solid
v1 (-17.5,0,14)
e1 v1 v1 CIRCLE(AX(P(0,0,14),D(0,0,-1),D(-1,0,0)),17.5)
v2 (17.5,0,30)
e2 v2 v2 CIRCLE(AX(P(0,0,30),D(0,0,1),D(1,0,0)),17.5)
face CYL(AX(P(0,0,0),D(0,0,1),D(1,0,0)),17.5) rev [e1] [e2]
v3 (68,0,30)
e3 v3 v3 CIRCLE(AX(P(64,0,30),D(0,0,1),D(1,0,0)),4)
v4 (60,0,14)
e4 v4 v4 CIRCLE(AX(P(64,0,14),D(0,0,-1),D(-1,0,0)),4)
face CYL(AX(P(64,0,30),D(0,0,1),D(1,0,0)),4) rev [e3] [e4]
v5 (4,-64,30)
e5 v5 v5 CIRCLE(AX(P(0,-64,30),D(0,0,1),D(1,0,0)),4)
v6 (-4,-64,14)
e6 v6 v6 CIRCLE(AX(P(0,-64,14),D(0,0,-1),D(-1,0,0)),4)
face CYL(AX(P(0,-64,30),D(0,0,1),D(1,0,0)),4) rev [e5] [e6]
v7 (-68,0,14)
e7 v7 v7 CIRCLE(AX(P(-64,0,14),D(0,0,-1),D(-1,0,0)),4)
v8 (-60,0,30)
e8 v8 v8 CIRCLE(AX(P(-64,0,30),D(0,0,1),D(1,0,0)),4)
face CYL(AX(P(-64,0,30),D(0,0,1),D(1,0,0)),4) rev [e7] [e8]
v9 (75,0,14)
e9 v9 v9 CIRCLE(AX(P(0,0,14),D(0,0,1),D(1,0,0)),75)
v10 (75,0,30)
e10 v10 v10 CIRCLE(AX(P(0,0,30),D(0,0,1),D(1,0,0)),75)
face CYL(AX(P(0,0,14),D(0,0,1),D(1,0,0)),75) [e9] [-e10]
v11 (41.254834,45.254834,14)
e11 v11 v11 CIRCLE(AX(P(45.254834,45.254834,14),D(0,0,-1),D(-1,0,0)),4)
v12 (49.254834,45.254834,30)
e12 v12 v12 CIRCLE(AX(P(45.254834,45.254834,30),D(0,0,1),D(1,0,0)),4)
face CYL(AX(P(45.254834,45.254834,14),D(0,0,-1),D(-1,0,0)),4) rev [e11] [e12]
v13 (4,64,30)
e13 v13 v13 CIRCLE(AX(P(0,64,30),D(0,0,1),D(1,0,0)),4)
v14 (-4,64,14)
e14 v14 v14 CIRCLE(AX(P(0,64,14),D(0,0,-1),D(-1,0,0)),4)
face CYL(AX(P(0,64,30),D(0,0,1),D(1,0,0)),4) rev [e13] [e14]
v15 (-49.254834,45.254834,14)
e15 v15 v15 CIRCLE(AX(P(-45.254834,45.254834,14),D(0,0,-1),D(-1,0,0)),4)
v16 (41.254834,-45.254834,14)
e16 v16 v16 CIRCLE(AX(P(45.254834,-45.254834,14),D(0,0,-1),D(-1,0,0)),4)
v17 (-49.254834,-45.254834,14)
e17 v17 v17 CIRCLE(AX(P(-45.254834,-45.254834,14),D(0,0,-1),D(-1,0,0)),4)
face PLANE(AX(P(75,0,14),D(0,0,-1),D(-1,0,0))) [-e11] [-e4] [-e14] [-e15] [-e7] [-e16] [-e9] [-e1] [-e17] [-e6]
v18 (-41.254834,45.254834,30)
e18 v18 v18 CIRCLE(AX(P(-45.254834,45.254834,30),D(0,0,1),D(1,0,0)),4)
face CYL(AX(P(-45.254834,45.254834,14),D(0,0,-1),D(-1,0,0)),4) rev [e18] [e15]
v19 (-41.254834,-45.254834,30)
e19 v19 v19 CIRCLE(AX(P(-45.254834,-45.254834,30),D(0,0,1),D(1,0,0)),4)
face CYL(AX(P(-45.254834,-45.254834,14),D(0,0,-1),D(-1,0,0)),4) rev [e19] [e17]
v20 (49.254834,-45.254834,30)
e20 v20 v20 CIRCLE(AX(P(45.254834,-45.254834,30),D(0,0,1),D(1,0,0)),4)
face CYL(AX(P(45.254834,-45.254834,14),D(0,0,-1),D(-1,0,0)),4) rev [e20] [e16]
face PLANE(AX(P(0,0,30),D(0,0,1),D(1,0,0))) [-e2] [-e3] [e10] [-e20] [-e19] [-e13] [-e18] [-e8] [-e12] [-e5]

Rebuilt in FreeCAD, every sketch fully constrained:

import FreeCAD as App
import Part
import Sketcher
from FreeCAD import Vector
Q = App.Units.Quantity


def add_polygon(sketch, points):
    """Adds a closed chain of lines whose ends are joined by coincident constraints."""
    first, n = sketch.GeometryCount, len(points)
    for a, b in zip(points, points[1:] + points[:1]):
        sketch.addGeometry(Part.LineSegment(App.Vector(*a, 0), App.Vector(*b, 0)), False)
    for i in range(n):
        sketch.addConstraint(Sketcher.Constraint("Coincident", first + i, 2, first + (i + 1) % n, 1))

doc = App.newDocument("Part")
body = doc.addObject("PartDesign::Body", "Body")

# Sketch on XZ plane
sketch1 = body.newObject("Sketcher::SketchObject", "Sketch")
sketch1.AttachmentSupport = (doc.getObject("XZ_Plane"), [""])
sketch1.MapMode = "FlatFace"
add_polygon(sketch1, [(0, 14), (0, 30), (75, 30), (75, 14)])  # lines 0-3
sketch1.addConstraint([
    Sketcher.Constraint("Vertical", 0),
    Sketcher.Constraint("Horizontal", 1),
    Sketcher.Constraint("Vertical", 2),
    Sketcher.Constraint("Horizontal", 3),
    Sketcher.Constraint("PointOnObject", 0, 2, -2),
    Sketcher.Constraint("DistanceX", 1, 1, 1, 2, Q("75 mm")),
    Sketcher.Constraint("DistanceY", 0, 1, 0, 2, Q("16 mm")),
    Sketcher.Constraint("DistanceY", -1, 1, 0, 2, Q("30 mm")),
])
revolution = body.newObject("PartDesign::Revolution", "Revolution")
revolution.Profile = sketch1
revolution.ReferenceAxis = (sketch1, ["V_Axis"])
revolution.Angle = 360

# Sketch on XY plane
sketch2 = body.newObject("Sketcher::SketchObject", "Sketch001")
sketch2.AttachmentSupport = (doc.getObject("XY_Plane"), [""])
sketch2.MapMode = "FlatFace"
sketch2.AttachmentOffset = App.Placement(Vector(0, 0, 14), App.Rotation())
sketch2.addGeometry([
    Part.Circle(Vector(-45.3, 45.3, 0), Vector(0, 0, 1), 4),
    Part.Circle(Vector(45.3, 45.3, 0), Vector(0, 0, 1), 4),
    Part.Circle(Vector(45.3, -45.3, 0), Vector(0, 0, 1), 4),
    Part.Circle(Vector(-45.3, -45.3, 0), Vector(0, 0, 1), 4),
], False)
sketch2.addConstraint([
    Sketcher.Constraint("Equal", 0, 1),
    Sketcher.Constraint("Equal", 1, 2),
    Sketcher.Constraint("Equal", 2, 3),
    Sketcher.Constraint("Symmetric", 0, 3, 2, 3, -1, 1),
    Sketcher.Constraint("Symmetric", 1, 3, 3, 3, -1, 1),
    Sketcher.Constraint("Symmetric", 0, 3, 1, 3, -2),
    Sketcher.Constraint("Diameter", 0, Q("8 mm")),
    Sketcher.Constraint("DistanceX", 0, 3, -1, 1, Q("45.254834 mm")),
    Sketcher.Constraint("DistanceY", -1, 1, 0, 3, Q("45.254834 mm")),
])
doc.recompute()
hole = body.newObject("PartDesign::Hole", "Hole")
hole.Profile = sketch2
hole.ThreadType = "None"
hole.Diameter = 8
hole.DepthType = "Dimension"
hole.Depth = 30
hole.DrillPoint = "Angled"
hole.DrillPointAngle = 118
hole.Reversed = True

# Sketch on XY plane
sketch3 = body.newObject("Sketcher::SketchObject", "Sketch002")
sketch3.AttachmentSupport = (doc.getObject("XY_Plane"), [""])
sketch3.MapMode = "FlatFace"
sketch3.AttachmentOffset = App.Placement(Vector(0, 0, 30), App.Rotation())
sketch3.addGeometry([
    Part.Circle(Vector(0, 64, 0), Vector(0, 0, 1), 4),
    Part.Circle(Vector(0, -64, 0), Vector(0, 0, 1), 4),
    Part.Circle(Vector(64, 0, 0), Vector(0, 0, 1), 4),
    Part.Circle(Vector(-64, 0, 0), Vector(0, 0, 1), 4),
], False)
sketch3.addConstraint([
    Sketcher.Constraint("Equal", 0, 1),
    Sketcher.Constraint("Equal", 1, 2),
    Sketcher.Constraint("Equal", 2, 3),
    Sketcher.Constraint("Symmetric", 0, 3, 1, 3, -1, 1),
    Sketcher.Constraint("Symmetric", 2, 3, 3, 3, -1, 1),
    Sketcher.Constraint("PointOnObject", 0, 3, -2),
    Sketcher.Constraint("PointOnObject", 2, 3, -1),
    Sketcher.Constraint("Diameter", 0, Q("8 mm")),
    Sketcher.Constraint("DistanceY", -1, 1, 0, 3, Q("64 mm")),
    Sketcher.Constraint("DistanceX", -1, 1, 2, 3, Q("64 mm")),
])
doc.recompute()
hole2 = body.newObject("PartDesign::Hole", "Hole001")
hole2.Profile = sketch3
hole2.ThreadType = "None"
hole2.Diameter = 8
hole2.DepthType = "Dimension"
hole2.Depth = 22
hole2.DrillPoint = "Angled"
hole2.DrillPointAngle = 118

# Sketch on XY plane
sketch4 = body.newObject("Sketcher::SketchObject", "Sketch003")
sketch4.AttachmentSupport = (doc.getObject("XY_Plane"), [""])
sketch4.MapMode = "FlatFace"
sketch4.AttachmentOffset = App.Placement(Vector(0, 0, 30), App.Rotation())
sketch4.addGeometry(Part.Circle(Vector(0, 0, 0), Vector(0, 0, 1), 18), False)
sketch4.addConstraint([
    Sketcher.Constraint("Coincident", 0, 3, -1, 1),
    Sketcher.Constraint("Diameter", 0, Q("35 mm")),
])
pocket1 = body.newObject("PartDesign::Pocket", "Pocket")
pocket1.Profile = sketch4
pocket1.Length = 30

doc.recompute()
